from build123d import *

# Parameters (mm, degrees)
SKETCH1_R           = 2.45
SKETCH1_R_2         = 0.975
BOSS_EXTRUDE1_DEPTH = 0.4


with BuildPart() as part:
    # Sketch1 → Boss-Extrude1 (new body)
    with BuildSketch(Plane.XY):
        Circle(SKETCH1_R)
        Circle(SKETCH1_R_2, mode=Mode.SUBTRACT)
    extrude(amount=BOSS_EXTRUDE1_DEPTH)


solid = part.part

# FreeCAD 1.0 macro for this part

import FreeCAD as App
import Part
import Sketcher
from FreeCAD import Vector

doc = App.newDocument("Part")
params = doc.addObject("Spreadsheet::Sheet", "Params")
for row, (alias, value) in enumerate([
    ("sketch1_diameter", "4.9 mm"),
    ("sketch1_diameter2", "1.95 mm"),
    ("pad1_length", "0.4 mm"),
], start=1):
    params.set(f"A{row}", alias)
    params.set(f"B{row}", "=" + value)
    params.setAlias(f"B{row}", alias)

body = doc.addObject("PartDesign::Body", "Body")

# Sketch on XY plane
sketch1 = body.newObject("Sketcher::SketchObject", "Sketch")
sketch1.AttachmentSupport = (doc.getObject("XY_Plane"), [""])
sketch1.MapMode = "FlatFace"
sketch1.addGeometry([
    Part.Circle(Vector(0, 0, 0), Vector(0, 0, 1), 2.5),
    Part.Circle(Vector(0, 0, 0), Vector(0, 0, 1), 1),
], False)
sketch1.addConstraint([
    Sketcher.Constraint("Coincident", 0, 3, -1, 1),
    Sketcher.Constraint("Coincident", 1, 3, -1, 1),
    Sketcher.Constraint("Diameter", 0, 4.9),
    Sketcher.Constraint("Diameter", 1, 1.95),
])
sketch1.setExpression("Constraints[2]", "Params.sketch1_diameter")
sketch1.setExpression("Constraints[3]", "Params.sketch1_diameter2")
pad1 = body.newObject("PartDesign::Pad", "Pad")
pad1.Profile = sketch1
pad1.setExpression("Length", "Params.pad1_length")

doc.recompute()
